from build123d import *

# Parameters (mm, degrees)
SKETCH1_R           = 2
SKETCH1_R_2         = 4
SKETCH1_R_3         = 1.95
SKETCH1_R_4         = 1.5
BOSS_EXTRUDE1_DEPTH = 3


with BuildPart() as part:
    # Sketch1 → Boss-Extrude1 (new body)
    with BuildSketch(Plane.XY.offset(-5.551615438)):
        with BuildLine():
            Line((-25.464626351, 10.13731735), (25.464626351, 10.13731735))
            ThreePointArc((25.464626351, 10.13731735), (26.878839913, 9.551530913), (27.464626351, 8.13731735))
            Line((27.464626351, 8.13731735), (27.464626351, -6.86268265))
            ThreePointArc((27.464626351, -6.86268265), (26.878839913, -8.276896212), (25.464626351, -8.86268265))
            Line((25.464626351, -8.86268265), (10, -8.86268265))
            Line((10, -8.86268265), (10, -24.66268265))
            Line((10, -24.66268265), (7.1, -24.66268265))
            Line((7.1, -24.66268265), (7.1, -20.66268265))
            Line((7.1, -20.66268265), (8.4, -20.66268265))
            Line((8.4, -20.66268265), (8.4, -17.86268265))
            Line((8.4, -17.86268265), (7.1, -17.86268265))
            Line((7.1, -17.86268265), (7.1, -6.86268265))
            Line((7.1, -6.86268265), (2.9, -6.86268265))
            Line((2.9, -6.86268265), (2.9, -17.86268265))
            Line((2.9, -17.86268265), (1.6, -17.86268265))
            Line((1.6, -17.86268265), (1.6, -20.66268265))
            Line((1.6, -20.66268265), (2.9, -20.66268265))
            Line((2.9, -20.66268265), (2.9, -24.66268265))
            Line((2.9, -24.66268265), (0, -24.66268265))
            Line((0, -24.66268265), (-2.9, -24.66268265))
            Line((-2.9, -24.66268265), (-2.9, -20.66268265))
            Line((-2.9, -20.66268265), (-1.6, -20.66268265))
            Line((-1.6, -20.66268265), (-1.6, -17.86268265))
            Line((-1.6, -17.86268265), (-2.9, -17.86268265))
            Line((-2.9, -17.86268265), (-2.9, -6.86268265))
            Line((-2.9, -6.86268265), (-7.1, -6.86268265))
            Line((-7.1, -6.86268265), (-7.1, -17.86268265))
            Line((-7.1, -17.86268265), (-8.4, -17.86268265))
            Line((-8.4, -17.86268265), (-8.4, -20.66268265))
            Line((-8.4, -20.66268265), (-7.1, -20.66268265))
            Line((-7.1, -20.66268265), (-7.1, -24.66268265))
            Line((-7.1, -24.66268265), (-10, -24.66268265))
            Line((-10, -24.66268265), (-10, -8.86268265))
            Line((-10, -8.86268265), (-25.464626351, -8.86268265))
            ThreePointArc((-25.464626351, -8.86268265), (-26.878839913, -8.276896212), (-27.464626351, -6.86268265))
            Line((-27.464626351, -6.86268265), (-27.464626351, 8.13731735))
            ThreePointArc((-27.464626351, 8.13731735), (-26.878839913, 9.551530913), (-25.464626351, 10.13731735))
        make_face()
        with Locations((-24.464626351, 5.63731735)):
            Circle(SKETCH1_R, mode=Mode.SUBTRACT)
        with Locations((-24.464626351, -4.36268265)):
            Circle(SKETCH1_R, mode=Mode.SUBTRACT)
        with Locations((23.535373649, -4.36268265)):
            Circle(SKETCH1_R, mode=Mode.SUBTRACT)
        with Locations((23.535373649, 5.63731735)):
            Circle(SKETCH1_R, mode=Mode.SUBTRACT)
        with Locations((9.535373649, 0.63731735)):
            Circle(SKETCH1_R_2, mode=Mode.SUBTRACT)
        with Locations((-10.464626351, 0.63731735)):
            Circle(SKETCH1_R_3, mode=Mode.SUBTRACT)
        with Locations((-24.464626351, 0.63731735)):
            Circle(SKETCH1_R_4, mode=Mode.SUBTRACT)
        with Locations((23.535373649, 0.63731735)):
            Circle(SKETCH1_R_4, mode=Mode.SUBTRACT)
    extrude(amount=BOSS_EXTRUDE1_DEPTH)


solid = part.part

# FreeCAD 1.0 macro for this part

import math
import FreeCAD as App
import Part
import Sketcher

doc = App.newDocument("Part")
body = doc.addObject("PartDesign::Body", "Body")

sketch1 = body.newObject("Sketcher::SketchObject", "Sketch")
sketch1.AttachmentSupport = (doc.getObject("XY_Plane"), [""])
sketch1.MapMode = "FlatFace"
sketch1.AttachmentOffset = App.Placement(App.Vector(0, 0, -5.551615), App.Rotation())
sketch1.addGeometry(Part.LineSegment(App.Vector(25.5, 10.1, 0), App.Vector(-25.5, 10.1, 0)), False)
sketch1.addGeometry(Part.ArcOfCircle(Part.Circle(App.Vector(-25.5, 8.1, 0), App.Vector(0, 0, 1), 2), math.radians(90), math.radians(180)), False)
sketch1.addGeometry(Part.LineSegment(App.Vector(-27.5, 8.1, 0), App.Vector(-27.5, -6.9, 0)), False)
sketch1.addGeometry(Part.ArcOfCircle(Part.Circle(App.Vector(-25.5, -6.9, 0), App.Vector(0, 0, 1), 2), math.radians(-180), math.radians(-90)), False)
sketch1.addGeometry(Part.LineSegment(App.Vector(-25.5, -8.9, 0), App.Vector(-10, -8.9, 0)), False)
sketch1.addGeometry(Part.LineSegment(App.Vector(-10, -8.9, 0), App.Vector(-10, -24.7, 0)), False)
sketch1.addGeometry(Part.LineSegment(App.Vector(-10, -24.7, 0), App.Vector(-7.1, -24.7, 0)), False)
sketch1.addGeometry(Part.LineSegment(App.Vector(-7.1, -24.7, 0), App.Vector(-7.1, -20.7, 0)), False)
sketch1.addGeometry(Part.LineSegment(App.Vector(-7.1, -20.7, 0), App.Vector(-8.4, -20.7, 0)), False)
sketch1.addGeometry(Part.LineSegment(App.Vector(-8.4, -20.7, 0), App.Vector(-8.4, -17.9, 0)), False)
sketch1.addGeometry(Part.LineSegment(App.Vector(-8.4, -17.9, 0), App.Vector(-7.1, -17.9, 0)), False)
sketch1.addGeometry(Part.LineSegment(App.Vector(-7.1, -17.9, 0), App.Vector(-7.1, -6.9, 0)), False)
sketch1.addGeometry(Part.LineSegment(App.Vector(-7.1, -6.9, 0), App.Vector(-2.9, -6.9, 0)), False)
sketch1.addGeometry(Part.LineSegment(App.Vector(-2.9, -6.9, 0), App.Vector(-2.9, -17.9, 0)), False)
sketch1.addGeometry(Part.LineSegment(App.Vector(-2.9, -17.9, 0), App.Vector(-1.6, -17.9, 0)), False)
sketch1.addGeometry(Part.LineSegment(App.Vector(-1.6, -17.9, 0), App.Vector(-1.6, -20.7, 0)), False)
sketch1.addGeometry(Part.LineSegment(App.Vector(-1.6, -20.7, 0), App.Vector(-2.9, -20.7, 0)), False)
sketch1.addGeometry(Part.LineSegment(App.Vector(-2.9, -20.7, 0), App.Vector(-2.9, -24.7, 0)), False)
sketch1.addGeometry(Part.LineSegment(App.Vector(-2.9, -24.7, 0), App.Vector(2.9, -24.7, 0)), False)
sketch1.addGeometry(Part.LineSegment(App.Vector(2.9, -24.7, 0), App.Vector(2.9, -20.7, 0)), False)
sketch1.addGeometry(Part.LineSegment(App.Vector(2.9, -20.7, 0), App.Vector(1.6, -20.7, 0)), False)
sketch1.addGeometry(Part.LineSegment(App.Vector(1.6, -20.7, 0), App.Vector(1.6, -17.9, 0)), False)
sketch1.addGeometry(Part.LineSegment(App.Vector(1.6, -17.9, 0), App.Vector(2.9, -17.9, 0)), False)
sketch1.addGeometry(Part.LineSegment(App.Vector(2.9, -17.9, 0), App.Vector(2.9, -6.9, 0)), False)
sketch1.addGeometry(Part.LineSegment(App.Vector(2.9, -6.9, 0), App.Vector(7.1, -6.9, 0)), False)
sketch1.addGeometry(Part.LineSegment(App.Vector(7.1, -6.9, 0), App.Vector(7.1, -17.9, 0)), False)
sketch1.addGeometry(Part.LineSegment(App.Vector(7.1, -17.9, 0), App.Vector(8.4, -17.9, 0)), False)
sketch1.addGeometry(Part.LineSegment(App.Vector(8.4, -17.9, 0), App.Vector(8.4, -20.7, 0)), False)
sketch1.addGeometry(Part.LineSegment(App.Vector(8.4, -20.7, 0), App.Vector(7.1, -20.7, 0)), False)
sketch1.addGeometry(Part.LineSegment(App.Vector(7.1, -20.7, 0), App.Vector(7.1, -24.7, 0)), False)
sketch1.addGeometry(Part.LineSegment(App.Vector(7.1, -24.7, 0), App.Vector(10, -24.7, 0)), False)
sketch1.addGeometry(Part.LineSegment(App.Vector(10, -24.7, 0), App.Vector(10, -8.9, 0)), False)
sketch1.addGeometry(Part.LineSegment(App.Vector(10, -8.9, 0), App.Vector(25.5, -8.9, 0)), False)
sketch1.addGeometry(Part.ArcOfCircle(Part.Circle(App.Vector(25.5, -6.9, 0), App.Vector(0, 0, 1), 2), math.radians(-90), math.radians(0)), False)
sketch1.addGeometry(Part.LineSegment(App.Vector(27.5, -6.9, 0), App.Vector(27.5, 8.1, 0)), False)
sketch1.addGeometry(Part.ArcOfCircle(Part.Circle(App.Vector(25.5, 8.1, 0), App.Vector(0, 0, 1), 2), math.radians(0), math.radians(90)), False)
sketch1.addGeometry(Part.Circle(App.Vector(23.5, -4.4, 0), App.Vector(0, 0, 1), 2), False)
sketch1.addGeometry(Part.Circle(App.Vector(-24.5, -4.4, 0), App.Vector(0, 0, 1), 2), False)
sketch1.addGeometry(Part.Circle(App.Vector(23.5, 0.6, 0), App.Vector(0, 0, 1), 1.5), False)
sketch1.addGeometry(Part.Circle(App.Vector(9.5, 0.6, 0), App.Vector(0, 0, 1), 4), False)
sketch1.addGeometry(Part.Circle(App.Vector(23.5, 5.6, 0), App.Vector(0, 0, 1), 2), False)
sketch1.addGeometry(Part.Circle(App.Vector(-10.5, 0.6, 0), App.Vector(0, 0, 1), 1.9), False)
sketch1.addGeometry(Part.Circle(App.Vector(-24.5, 0.6, 0), App.Vector(0, 0, 1), 1.5), False)
sketch1.addGeometry(Part.Circle(App.Vector(-24.5, 5.6, 0), App.Vector(0, 0, 1), 2), False)
sketch1.addConstraint(Sketcher.Constraint("Tangent", 0, 2, 1, 1))
sketch1.addConstraint(Sketcher.Constraint("Tangent", 1, 2, 2, 1))
sketch1.addConstraint(Sketcher.Constraint("Tangent", 2, 2, 3, 1))
sketch1.addConstraint(Sketcher.Constraint("Tangent", 3, 2, 4, 1))
sketch1.addConstraint(Sketcher.Constraint("Coincident", 4, 2, 5, 1))
sketch1.addConstraint(Sketcher.Constraint("Coincident", 5, 2, 6, 1))
sketch1.addConstraint(Sketcher.Constraint("Coincident", 6, 2, 7, 1))
sketch1.addConstraint(Sketcher.Constraint("Coincident", 7, 2, 8, 1))
sketch1.addConstraint(Sketcher.Constraint("Coincident", 8, 2, 9, 1))
sketch1.addConstraint(Sketcher.Constraint("Coincident", 9, 2, 10, 1))
sketch1.addConstraint(Sketcher.Constraint("Coincident", 10, 2, 11, 1))
sketch1.addConstraint(Sketcher.Constraint("Coincident", 11, 2, 12, 1))
sketch1.addConstraint(Sketcher.Constraint("Coincident", 12, 2, 13, 1))
sketch1.addConstraint(Sketcher.Constraint("Coincident", 13, 2, 14, 1))
sketch1.addConstraint(Sketcher.Constraint("Coincident", 14, 2, 15, 1))
sketch1.addConstraint(Sketcher.Constraint("Coincident", 15, 2, 16, 1))
sketch1.addConstraint(Sketcher.Constraint("Coincident", 16, 2, 17, 1))
sketch1.addConstraint(Sketcher.Constraint("Coincident", 17, 2, 18, 1))
sketch1.addConstraint(Sketcher.Constraint("Coincident", 18, 2, 19, 1))
sketch1.addConstraint(Sketcher.Constraint("Coincident", 19, 2, 20, 1))
sketch1.addConstraint(Sketcher.Constraint("Coincident", 20, 2, 21, 1))
sketch1.addConstraint(Sketcher.Constraint("Coincident", 21, 2, 22, 1))
sketch1.addConstraint(Sketcher.Constraint("Coincident", 22, 2, 23, 1))
sketch1.addConstraint(Sketcher.Constraint("Coincident", 23, 2, 24, 1))
sketch1.addConstraint(Sketcher.Constraint("Coincident", 24, 2, 25, 1))
sketch1.addConstraint(Sketcher.Constraint("Coincident", 25, 2, 26, 1))
sketch1.addConstraint(Sketcher.Constraint("Coincident", 26, 2, 27, 1))
sketch1.addConstraint(Sketcher.Constraint("Coincident", 27, 2, 28, 1))
sketch1.addConstraint(Sketcher.Constraint("Coincident", 28, 2, 29, 1))
sketch1.addConstraint(Sketcher.Constraint("Coincident", 29, 2, 30, 1))
sketch1.addConstraint(Sketcher.Constraint("Coincident", 30, 2, 31, 1))
sketch1.addConstraint(Sketcher.Constraint("Coincident", 31, 2, 32, 1))
sketch1.addConstraint(Sketcher.Constraint("Tangent", 32, 2, 33, 1))
sketch1.addConstraint(Sketcher.Constraint("Tangent", 33, 2, 34, 1))
sketch1.addConstraint(Sketcher.Constraint("Tangent", 34, 2, 35, 1))
sketch1.addConstraint(Sketcher.Constraint("Tangent", 35, 2, 0, 1))
sketch1.addConstraint(Sketcher.Constraint("Horizontal", 0))
sketch1.addConstraint(Sketcher.Constraint("Vertical", 2))
sketch1.addConstraint(Sketcher.Constraint("Horizontal", 4))
sketch1.addConstraint(Sketcher.Constraint("Vertical", 5))
sketch1.addConstraint(Sketcher.Constraint("Horizontal", 6))
sketch1.addConstraint(Sketcher.Constraint("Vertical", 7))
sketch1.addConstraint(Sketcher.Constraint("Horizontal", 8))
sketch1.addConstraint(Sketcher.Constraint("Vertical", 9))
sketch1.addConstraint(Sketcher.Constraint("Horizontal", 10))
sketch1.addConstraint(Sketcher.Constraint("Vertical", 11))
sketch1.addConstraint(Sketcher.Constraint("Horizontal", 12))
sketch1.addConstraint(Sketcher.Constraint("Vertical", 13))
sketch1.addConstraint(Sketcher.Constraint("Horizontal", 14))
sketch1.addConstraint(Sketcher.Constraint("Vertical", 15))
sketch1.addConstraint(Sketcher.Constraint("Horizontal", 16))
sketch1.addConstraint(Sketcher.Constraint("Vertical", 17))
sketch1.addConstraint(Sketcher.Constraint("Horizontal", 18))
sketch1.addConstraint(Sketcher.Constraint("Vertical", 19))
sketch1.addConstraint(Sketcher.Constraint("Horizontal", 20))
sketch1.addConstraint(Sketcher.Constraint("Vertical", 21))
sketch1.addConstraint(Sketcher.Constraint("Horizontal", 22))
sketch1.addConstraint(Sketcher.Constraint("Vertical", 23))
sketch1.addConstraint(Sketcher.Constraint("Horizontal", 24))
sketch1.addConstraint(Sketcher.Constraint("Vertical", 25))
sketch1.addConstraint(Sketcher.Constraint("Horizontal", 26))
sketch1.addConstraint(Sketcher.Constraint("Vertical", 27))
sketch1.addConstraint(Sketcher.Constraint("Horizontal", 28))
sketch1.addConstraint(Sketcher.Constraint("Vertical", 29))
sketch1.addConstraint(Sketcher.Constraint("Horizontal", 30))
sketch1.addConstraint(Sketcher.Constraint("Vertical", 31))
sketch1.addConstraint(Sketcher.Constraint("Horizontal", 32))
sketch1.addConstraint(Sketcher.Constraint("Vertical", 34))
sketch1.addConstraint(Sketcher.Constraint("Equal", 1, 3))
sketch1.addConstraint(Sketcher.Constraint("Equal", 3, 33))
sketch1.addConstraint(Sketcher.Constraint("Equal", 33, 35))
sketch1.addConstraint(Sketcher.Constraint("Equal", 35, 36))
sketch1.addConstraint(Sketcher.Constraint("Equal", 36, 37))
sketch1.addConstraint(Sketcher.Constraint("Equal", 37, 40))
sketch1.addConstraint(Sketcher.Constraint("Equal", 38, 42))
sketch1.addConstraint(Sketcher.Constraint("Equal", 40, 43))
sketch1.addConstraint(Sketcher.Constraint("Symmetric", 3, 3, 33, 3, -2))
sketch1.addConstraint(Sketcher.Constraint("Symmetric", 16, 2, 19, 2, -2))
sketch1.addConstraint(Sketcher.Constraint("Symmetric", 14, 2, 21, 2, -2))
sketch1.addConstraint(Sketcher.Constraint("Symmetric", 12, 2, 23, 2, -2))
sketch1.addConstraint(Sketcher.Constraint("Symmetric", 10, 2, 25, 2, -2))
sketch1.addConstraint(Sketcher.Constraint("Symmetric", 8, 2, 27, 2, -2))
sketch1.addConstraint(Sketcher.Constraint("Symmetric", 6, 2, 29, 2, -2))
sketch1.addConstraint(Sketcher.Constraint("Horizontal", 36, 3, 37, 3))
sketch1.addConstraint(Sketcher.Constraint("Horizontal", 38, 3, 39, 3))
sketch1.addConstraint(Sketcher.Constraint("Horizontal", 39, 3, 41, 3))
sketch1.addConstraint(Sketcher.Constraint("Horizontal", 41, 3, 42, 3))
sketch1.addConstraint(Sketcher.Constraint("Horizontal", 40, 3, 43, 3))
sketch1.addConstraint(Sketcher.Constraint("Horizontal", 2, 2, 11, 2))
sketch1.addConstraint(Sketcher.Constraint("Horizontal", 10, 2, 13, 2))
sketch1.addConstraint(Sketcher.Constraint("Horizontal", 8, 2, 15, 2))
sketch1.addConstraint(Sketcher.Constraint("Horizontal", 6, 2, 17, 2))
sketch1.addConstraint(Sketcher.Constraint("Vertical", 36, 3, 38, 3))
sketch1.addConstraint(Sketcher.Constraint("Vertical", 38, 3, 40, 3))
sketch1.addConstraint(Sketcher.Constraint("Vertical", 37, 3, 42, 3))
sketch1.addConstraint(Sketcher.Constraint("Vertical", 42, 3, 43, 3))
sketch1.addConstraint(Sketcher.Constraint("Vertical", 7, 2, 10, 2))
sketch1.addConstraint(Sketcher.Constraint("Vertical", 13, 2, 16, 2))
sketch1.addConstraint(Sketcher.Constraint("Equal", 10, 14))
sketch1.addConstraint(Sketcher.Constraint("Equal", 6, 30))
sketch1.addConstraint(Sketcher.Constraint("Diameter", 36, 4.0))
sketch1.addConstraint(Sketcher.Constraint("Diameter", 38, 3.0))
sketch1.addConstraint(Sketcher.Constraint("Diameter", 39, 8.0))
sketch1.addConstraint(Sketcher.Constraint("Diameter", 41, 3.9))
sketch1.addConstraint(Sketcher.Constraint("DistanceY", 2, 2, 2, 1, 15.0))
sketch1.addConstraint(Sketcher.Constraint("DistanceY", 7, 1, 7, 2, 4.0))
sketch1.addConstraint(Sketcher.Constraint("DistanceY", 11, 1, 11, 2, 11.0))
sketch1.addConstraint(Sketcher.Constraint("DistanceX", 6, 1, 6, 2, 2.9))
sketch1.addConstraint(Sketcher.Constraint("DistanceX", 8, 2, 8, 1, 1.3))
sketch1.addConstraint(Sketcher.Constraint("DistanceX", 12, 1, 12, 2, 4.2))
sketch1.addConstraint(Sketcher.Constraint("DistanceX", 18, 1, 18, 2, 5.8))
sketch1.addConstraint(Sketcher.Constraint("DistanceY", 5, 2, 5, 1, 15.8))
sketch1.addConstraint(Sketcher.Constraint("DistanceX", 3, 3, 36, 3, 49.0))
sketch1.addConstraint(Sketcher.Constraint("DistanceX", 3, 3, 37, 3, 1.0))
sketch1.addConstraint(Sketcher.Constraint("DistanceY", 36, 3, 38, 3, 5.0))
sketch1.addConstraint(Sketcher.Constraint("DistanceX", 39, 3, 38, 3, 14.0))
sketch1.addConstraint(Sketcher.Constraint("DistanceY", 38, 3, 40, 3, 5.0))
sketch1.addConstraint(Sketcher.Constraint("DistanceX", 37, 3, 41, 3, 14.0))
sketch1.addConstraint(Sketcher.Constraint("DistanceY", 33, 3, 36, 3, 2.5))
sketch1.addConstraint(Sketcher.Constraint("DistanceX", 0, 2, 0, 1, 50.929253))
sketch1.addConstraint(Sketcher.Constraint("DistanceY", -1, 1, 1, 3, 8.137317))
pad1 = body.newObject("PartDesign::Pad", "Pad")
pad1.Profile = sketch1
pad1.Length = 3

doc.recompute()
